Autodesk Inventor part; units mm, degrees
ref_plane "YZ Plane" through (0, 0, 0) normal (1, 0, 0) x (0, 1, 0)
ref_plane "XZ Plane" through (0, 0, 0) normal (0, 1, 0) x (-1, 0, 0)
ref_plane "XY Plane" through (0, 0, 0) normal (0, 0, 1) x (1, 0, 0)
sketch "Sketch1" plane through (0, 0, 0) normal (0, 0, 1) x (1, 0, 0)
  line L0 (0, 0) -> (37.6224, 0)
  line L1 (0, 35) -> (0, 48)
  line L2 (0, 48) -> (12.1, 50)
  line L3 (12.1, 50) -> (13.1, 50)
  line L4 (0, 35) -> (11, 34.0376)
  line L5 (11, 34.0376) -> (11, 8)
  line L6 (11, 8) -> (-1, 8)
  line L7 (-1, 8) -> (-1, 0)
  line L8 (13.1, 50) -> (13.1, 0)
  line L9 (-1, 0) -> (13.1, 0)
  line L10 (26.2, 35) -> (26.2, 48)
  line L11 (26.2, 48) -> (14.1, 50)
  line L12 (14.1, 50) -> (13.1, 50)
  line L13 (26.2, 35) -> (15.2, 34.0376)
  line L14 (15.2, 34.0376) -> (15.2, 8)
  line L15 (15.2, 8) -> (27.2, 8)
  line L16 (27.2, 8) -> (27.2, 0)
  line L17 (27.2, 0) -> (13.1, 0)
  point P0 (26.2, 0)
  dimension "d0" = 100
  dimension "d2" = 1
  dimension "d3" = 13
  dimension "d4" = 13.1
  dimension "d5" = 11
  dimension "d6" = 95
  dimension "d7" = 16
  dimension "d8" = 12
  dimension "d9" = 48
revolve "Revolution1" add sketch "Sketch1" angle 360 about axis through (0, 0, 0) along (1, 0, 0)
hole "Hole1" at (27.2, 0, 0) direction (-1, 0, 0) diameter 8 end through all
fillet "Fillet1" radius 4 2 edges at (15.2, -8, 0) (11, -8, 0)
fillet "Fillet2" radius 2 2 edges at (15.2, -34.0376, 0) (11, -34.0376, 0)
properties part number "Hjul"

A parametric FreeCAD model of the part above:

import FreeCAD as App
import Part
import Sketcher
from FreeCAD import Vector
Q = App.Units.Quantity


def edges_at(feature, points):
    """Names of the edges that pass closest to the given points."""
    edges = feature.Shape.Edges
    near = lambda p: min(range(len(edges)), key=lambda i: edges[i].distToShape(Part.Vertex(*p))[0])
    return sorted({f"Edge{near(p) + 1}" for p in points})


def add_polygon(sketch, points):
    """Adds a closed chain of lines whose ends are joined by coincident constraints."""
    first, n = sketch.GeometryCount, len(points)
    for a, b in zip(points, points[1:] + points[:1]):
        sketch.addGeometry(Part.LineSegment(App.Vector(*a, 0), App.Vector(*b, 0)), False)
    for i in range(n):
        sketch.addConstraint(Sketcher.Constraint("Coincident", first + i, 2, first + (i + 1) % n, 1))

doc = App.newDocument("Part")
body = doc.addObject("PartDesign::Body", "Body")

# Sketch on XY plane
sketch1 = doc.addObject("Sketcher::SketchObject", "Sketch")
body.addObject(sketch1)
sketch1.AttachmentSupport = (doc.XY_Plane, [""])
sketch1.MapMode = "FlatFace"
add_polygon(sketch1, [(-1, 0), (27.2, 0), (27.2, 8), (15.2, 8), (15.2, 34.0376), (26.2, 35), (26.2, 48), (14.1, 50), (12.1, 50), (0, 48), (0, 35), (11, 34.0376), (11, 8), (-1, 8)])  # lines 0-13
sketch1.addConstraint(Sketcher.Constraint("Horizontal", 0))
sketch1.addConstraint(Sketcher.Constraint("Vertical", 1))
sketch1.addConstraint(Sketcher.Constraint("Horizontal", 2))
sketch1.addConstraint(Sketcher.Constraint("Vertical", 3))
sketch1.addConstraint(Sketcher.Constraint("Vertical", 5))
sketch1.addConstraint(Sketcher.Constraint("Horizontal", 7))
sketch1.addConstraint(Sketcher.Constraint("Vertical", 9))
sketch1.addConstraint(Sketcher.Constraint("Vertical", 11))
sketch1.addConstraint(Sketcher.Constraint("Horizontal", 12))
sketch1.addConstraint(Sketcher.Constraint("Vertical", 13))
sketch1.addConstraint(Sketcher.Constraint("PointOnObject", 0, 2, -1))
sketch1.addConstraint(Sketcher.Constraint("PointOnObject", 8, 2, -2))
sketch1.addConstraint(Sketcher.Constraint("Horizontal", 5, 2, 8, 2))
sketch1.addConstraint(Sketcher.Constraint("Horizontal", 4, 2, 9, 2))
sketch1.addConstraint(Sketcher.Constraint("Horizontal", 3, 2, 10, 2))
sketch1.addConstraint(Sketcher.Constraint("Horizontal", 2, 2, 11, 2))
sketch1.addConstraint(Sketcher.Constraint("Equal", 2, 12))
sketch1.addConstraint(Sketcher.Constraint("Equal", 6, 8))
sketch1.addConstraint(Sketcher.Constraint("Equal", 4, 10))
sketch1.addConstraint(Sketcher.Constraint("DistanceX", 2, 2, 2, 1, Q("12 mm")))
sketch1.addConstraint(Sketcher.Constraint("DistanceY", 5, 1, 5, 2, Q("13 mm")))
sketch1.addConstraint(Sketcher.Constraint("DistanceY", -1, 1, 5, 2, Q("48 mm")))
sketch1.addConstraint(Sketcher.Constraint("DistanceX", -1, 1, 10, 2, Q("11 mm")))
sketch1.addConstraint(Sketcher.Constraint("DistanceX", 6, 2, 1, 2, Q("13.1 mm")))
sketch1.addConstraint(Sketcher.Constraint("DistanceX", 7, 2, 7, 1, Q("2 mm")))
sketch1.addConstraint(Sketcher.Constraint("DistanceY", 1, 1, 1, 2, Q("8 mm")))
sketch1.addConstraint(Sketcher.Constraint("Angle", 4, Q("5.0001 deg")))
sketch1.addConstraint(Sketcher.Constraint("DistanceY", -1, 1, 6, 2, Q("50 mm")))
revolution = doc.addObject("PartDesign::Revolution", "Revolution")
body.addObject(revolution)
revolution.Profile = sketch1
revolution.ReferenceAxis = (sketch1, ["H_Axis"])
revolution.Angle = 360

# Sketch on YZ plane
sketch2 = doc.addObject("Sketcher::SketchObject", "Sketch001")
body.addObject(sketch2)
sketch2.AttachmentSupport = (doc.YZ_Plane, [""])
sketch2.MapMode = "FlatFace"
sketch2.AttachmentOffset = App.Placement(Vector(0, 0, 27.2), App.Rotation())
sketch2.addGeometry(Part.Circle(Vector(0, 0, 0), Vector(0, 0, 1), 4), False)
sketch2.addConstraint(Sketcher.Constraint("Coincident", 0, 3, -1, 1))
sketch2.addConstraint(Sketcher.Constraint("Diameter", 0, Q("8 mm")))
doc.recompute()
hole = doc.addObject("PartDesign::Hole", "Hole")
body.addObject(hole)
hole.Profile = sketch2
hole.ThreadType = "None"
hole.Diameter = 8
hole.DepthType = "ThroughAll"
doc.recompute()

fillet = doc.addObject("PartDesign::Fillet", "Fillet")
body.addObject(fillet)
fillet.Base = (hole, edges_at(hole, [(15.2, -8, 0), (11, -8, 0)]))
fillet.Radius = 4
doc.recompute()

fillet2 = doc.addObject("PartDesign::Fillet", "Fillet001")
body.addObject(fillet2)
fillet2.Base = (fillet, edges_at(fillet, [(15.2, -34.038, 0), (11, -34.038, 0)]))
fillet2.Radius = 2

doc.recompute()
